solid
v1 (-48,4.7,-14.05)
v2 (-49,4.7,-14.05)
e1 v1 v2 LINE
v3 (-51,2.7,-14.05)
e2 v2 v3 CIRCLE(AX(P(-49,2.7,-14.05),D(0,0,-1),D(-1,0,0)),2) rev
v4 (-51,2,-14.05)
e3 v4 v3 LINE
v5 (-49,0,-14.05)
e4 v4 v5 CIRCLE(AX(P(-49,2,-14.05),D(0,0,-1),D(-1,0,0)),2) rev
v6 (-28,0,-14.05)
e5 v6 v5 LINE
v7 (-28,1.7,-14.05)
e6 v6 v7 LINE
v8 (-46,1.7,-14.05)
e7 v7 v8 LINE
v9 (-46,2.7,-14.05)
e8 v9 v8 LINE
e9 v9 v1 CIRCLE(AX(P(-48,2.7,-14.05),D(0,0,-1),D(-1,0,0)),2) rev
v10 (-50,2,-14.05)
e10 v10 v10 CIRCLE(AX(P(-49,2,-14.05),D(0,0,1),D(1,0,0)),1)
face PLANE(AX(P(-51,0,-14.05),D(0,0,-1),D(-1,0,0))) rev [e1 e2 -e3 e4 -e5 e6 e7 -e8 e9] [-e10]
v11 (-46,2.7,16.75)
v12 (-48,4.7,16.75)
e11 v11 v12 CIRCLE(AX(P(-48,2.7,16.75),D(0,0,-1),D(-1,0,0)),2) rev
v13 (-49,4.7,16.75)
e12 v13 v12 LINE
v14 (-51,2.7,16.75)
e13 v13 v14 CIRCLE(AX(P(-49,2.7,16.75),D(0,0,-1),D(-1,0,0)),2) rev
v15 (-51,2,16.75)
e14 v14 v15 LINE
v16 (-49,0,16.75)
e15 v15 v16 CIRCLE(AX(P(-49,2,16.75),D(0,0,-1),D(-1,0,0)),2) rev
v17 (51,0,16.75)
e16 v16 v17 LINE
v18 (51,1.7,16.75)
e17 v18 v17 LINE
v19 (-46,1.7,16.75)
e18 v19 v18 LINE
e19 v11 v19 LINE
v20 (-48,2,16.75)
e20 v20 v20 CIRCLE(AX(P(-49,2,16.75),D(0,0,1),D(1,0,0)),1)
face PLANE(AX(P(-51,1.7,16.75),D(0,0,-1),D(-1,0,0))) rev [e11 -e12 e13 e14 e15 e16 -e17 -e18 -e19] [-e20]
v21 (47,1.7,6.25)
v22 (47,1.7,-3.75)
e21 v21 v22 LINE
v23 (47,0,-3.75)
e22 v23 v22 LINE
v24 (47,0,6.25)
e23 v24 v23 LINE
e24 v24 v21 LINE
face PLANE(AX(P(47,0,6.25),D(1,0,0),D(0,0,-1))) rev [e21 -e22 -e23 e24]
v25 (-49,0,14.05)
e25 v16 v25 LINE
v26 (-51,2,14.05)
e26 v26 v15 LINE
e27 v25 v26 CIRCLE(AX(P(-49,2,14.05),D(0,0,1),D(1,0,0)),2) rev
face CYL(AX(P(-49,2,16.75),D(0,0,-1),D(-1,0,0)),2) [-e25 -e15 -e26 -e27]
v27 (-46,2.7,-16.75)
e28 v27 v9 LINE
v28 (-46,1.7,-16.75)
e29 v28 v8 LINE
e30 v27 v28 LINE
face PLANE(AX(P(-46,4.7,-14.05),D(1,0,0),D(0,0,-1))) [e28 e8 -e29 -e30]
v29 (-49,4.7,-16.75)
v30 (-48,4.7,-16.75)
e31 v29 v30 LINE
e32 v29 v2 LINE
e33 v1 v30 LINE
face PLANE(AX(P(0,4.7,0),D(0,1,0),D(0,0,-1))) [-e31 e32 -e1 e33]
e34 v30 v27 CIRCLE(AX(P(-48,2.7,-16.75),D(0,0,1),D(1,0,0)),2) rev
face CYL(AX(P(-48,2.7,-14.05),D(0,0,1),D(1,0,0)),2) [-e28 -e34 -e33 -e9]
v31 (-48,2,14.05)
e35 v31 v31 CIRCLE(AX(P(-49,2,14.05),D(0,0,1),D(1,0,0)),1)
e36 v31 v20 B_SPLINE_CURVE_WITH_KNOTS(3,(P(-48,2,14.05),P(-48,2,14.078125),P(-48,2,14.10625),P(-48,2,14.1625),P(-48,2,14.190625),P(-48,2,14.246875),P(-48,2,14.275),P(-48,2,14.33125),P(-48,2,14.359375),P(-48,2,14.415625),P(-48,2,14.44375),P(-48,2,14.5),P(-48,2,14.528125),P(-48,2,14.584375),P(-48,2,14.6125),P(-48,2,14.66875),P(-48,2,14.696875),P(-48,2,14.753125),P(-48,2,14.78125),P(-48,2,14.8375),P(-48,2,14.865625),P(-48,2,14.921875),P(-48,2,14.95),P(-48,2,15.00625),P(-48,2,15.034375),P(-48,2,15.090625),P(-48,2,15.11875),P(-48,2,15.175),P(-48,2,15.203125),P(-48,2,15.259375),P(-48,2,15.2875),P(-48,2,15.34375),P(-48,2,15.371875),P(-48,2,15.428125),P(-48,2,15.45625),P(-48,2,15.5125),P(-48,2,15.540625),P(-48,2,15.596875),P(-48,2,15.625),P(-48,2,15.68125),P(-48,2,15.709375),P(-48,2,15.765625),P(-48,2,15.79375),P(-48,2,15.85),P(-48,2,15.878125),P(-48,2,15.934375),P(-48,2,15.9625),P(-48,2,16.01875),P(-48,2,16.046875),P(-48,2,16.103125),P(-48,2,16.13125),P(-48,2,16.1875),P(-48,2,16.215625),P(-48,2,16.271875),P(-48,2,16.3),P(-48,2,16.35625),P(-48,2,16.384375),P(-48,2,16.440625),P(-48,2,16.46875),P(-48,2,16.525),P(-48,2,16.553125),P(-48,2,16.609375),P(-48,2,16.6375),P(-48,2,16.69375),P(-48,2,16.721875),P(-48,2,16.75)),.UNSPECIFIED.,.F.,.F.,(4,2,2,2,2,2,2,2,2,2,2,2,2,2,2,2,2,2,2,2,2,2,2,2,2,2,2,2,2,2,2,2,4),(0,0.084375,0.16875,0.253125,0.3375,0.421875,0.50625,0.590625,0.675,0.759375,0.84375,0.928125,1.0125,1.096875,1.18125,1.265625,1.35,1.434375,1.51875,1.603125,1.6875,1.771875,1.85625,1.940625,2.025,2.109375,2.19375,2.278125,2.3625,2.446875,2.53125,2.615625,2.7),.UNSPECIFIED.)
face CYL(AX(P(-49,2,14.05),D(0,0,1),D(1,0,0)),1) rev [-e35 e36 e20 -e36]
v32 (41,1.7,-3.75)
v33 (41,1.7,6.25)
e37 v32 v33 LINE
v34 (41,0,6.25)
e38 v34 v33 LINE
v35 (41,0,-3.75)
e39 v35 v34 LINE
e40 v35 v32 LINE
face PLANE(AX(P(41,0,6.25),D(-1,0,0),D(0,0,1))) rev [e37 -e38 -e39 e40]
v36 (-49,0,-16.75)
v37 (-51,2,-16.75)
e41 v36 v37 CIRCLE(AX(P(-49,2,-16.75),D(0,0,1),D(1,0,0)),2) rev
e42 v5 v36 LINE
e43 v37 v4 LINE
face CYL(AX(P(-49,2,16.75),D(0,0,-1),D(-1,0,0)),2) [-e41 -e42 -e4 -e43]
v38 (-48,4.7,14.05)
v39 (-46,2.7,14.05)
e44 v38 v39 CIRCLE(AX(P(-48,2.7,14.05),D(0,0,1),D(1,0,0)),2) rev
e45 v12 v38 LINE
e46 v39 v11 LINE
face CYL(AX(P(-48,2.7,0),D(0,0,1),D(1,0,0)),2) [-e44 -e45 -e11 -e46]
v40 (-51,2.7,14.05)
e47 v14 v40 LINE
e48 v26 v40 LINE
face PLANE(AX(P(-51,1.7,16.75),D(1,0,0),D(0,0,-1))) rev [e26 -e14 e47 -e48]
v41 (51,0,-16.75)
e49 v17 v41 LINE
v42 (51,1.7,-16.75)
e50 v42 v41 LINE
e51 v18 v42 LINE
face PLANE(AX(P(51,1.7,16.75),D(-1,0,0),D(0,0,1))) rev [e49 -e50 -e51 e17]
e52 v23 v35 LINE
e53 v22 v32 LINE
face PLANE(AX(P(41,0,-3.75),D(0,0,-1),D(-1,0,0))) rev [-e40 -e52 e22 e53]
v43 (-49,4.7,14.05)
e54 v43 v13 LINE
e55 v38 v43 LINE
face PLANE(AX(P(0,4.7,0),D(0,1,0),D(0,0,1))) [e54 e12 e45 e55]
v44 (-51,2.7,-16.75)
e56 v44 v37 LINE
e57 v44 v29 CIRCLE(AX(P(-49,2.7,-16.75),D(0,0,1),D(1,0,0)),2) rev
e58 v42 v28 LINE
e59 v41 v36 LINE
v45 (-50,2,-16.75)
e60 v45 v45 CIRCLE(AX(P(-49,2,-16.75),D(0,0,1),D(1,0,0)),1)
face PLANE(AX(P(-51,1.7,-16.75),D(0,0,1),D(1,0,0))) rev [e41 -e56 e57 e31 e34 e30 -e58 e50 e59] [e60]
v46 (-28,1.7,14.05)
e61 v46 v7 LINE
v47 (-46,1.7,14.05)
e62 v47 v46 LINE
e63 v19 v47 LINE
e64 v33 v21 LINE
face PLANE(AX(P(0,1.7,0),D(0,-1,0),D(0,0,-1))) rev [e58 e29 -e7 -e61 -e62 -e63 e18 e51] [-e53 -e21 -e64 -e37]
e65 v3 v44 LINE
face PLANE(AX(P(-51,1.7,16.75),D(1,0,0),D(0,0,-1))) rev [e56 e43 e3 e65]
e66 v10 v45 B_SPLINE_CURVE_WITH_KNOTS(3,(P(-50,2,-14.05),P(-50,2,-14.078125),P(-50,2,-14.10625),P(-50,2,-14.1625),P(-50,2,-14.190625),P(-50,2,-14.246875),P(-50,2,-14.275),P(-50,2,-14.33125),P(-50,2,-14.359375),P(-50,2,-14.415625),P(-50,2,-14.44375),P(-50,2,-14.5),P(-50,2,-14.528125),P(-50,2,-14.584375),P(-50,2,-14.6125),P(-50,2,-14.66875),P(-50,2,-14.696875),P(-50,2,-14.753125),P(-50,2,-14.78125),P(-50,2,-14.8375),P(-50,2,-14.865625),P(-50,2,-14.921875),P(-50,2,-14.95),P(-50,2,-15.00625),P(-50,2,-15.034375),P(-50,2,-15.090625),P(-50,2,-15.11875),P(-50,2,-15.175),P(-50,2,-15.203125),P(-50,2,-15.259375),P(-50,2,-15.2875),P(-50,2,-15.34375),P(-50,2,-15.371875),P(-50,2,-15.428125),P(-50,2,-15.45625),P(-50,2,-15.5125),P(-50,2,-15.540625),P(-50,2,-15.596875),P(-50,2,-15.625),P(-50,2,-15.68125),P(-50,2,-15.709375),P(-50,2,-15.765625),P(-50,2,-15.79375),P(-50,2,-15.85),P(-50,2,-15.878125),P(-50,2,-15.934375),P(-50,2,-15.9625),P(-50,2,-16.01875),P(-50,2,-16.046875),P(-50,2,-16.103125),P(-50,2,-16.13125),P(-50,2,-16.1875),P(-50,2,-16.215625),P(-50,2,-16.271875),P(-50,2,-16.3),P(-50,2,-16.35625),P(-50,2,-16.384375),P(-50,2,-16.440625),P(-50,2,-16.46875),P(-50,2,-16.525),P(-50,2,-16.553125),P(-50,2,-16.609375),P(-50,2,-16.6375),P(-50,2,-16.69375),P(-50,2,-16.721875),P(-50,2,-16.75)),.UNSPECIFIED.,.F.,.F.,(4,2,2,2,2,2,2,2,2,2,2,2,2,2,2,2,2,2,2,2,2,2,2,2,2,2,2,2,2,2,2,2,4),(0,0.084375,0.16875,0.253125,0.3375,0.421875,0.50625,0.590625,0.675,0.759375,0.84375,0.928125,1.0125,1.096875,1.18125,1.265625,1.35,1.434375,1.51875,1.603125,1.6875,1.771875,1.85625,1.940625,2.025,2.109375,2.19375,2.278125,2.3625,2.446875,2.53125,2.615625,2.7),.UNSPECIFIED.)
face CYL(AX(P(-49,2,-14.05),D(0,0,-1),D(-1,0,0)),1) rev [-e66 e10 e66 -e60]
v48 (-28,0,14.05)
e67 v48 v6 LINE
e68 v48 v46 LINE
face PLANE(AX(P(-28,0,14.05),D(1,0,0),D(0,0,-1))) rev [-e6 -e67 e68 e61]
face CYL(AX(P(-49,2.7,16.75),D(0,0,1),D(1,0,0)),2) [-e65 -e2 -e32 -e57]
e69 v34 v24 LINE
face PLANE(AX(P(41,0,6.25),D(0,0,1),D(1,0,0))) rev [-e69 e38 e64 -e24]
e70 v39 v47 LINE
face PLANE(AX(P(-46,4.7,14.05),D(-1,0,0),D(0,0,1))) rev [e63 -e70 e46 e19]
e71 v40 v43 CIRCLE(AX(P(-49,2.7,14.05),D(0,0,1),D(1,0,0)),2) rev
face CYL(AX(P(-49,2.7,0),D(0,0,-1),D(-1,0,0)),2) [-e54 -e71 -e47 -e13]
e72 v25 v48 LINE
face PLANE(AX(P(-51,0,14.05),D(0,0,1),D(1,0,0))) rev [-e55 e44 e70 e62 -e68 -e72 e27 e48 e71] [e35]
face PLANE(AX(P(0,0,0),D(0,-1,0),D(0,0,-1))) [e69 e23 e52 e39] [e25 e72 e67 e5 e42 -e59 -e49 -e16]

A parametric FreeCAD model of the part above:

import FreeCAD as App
import Part
import Sketcher
from FreeCAD import Vector


def edges_at(feature, points):
    """Names of the edges that pass closest to the given points."""
    edges = feature.Shape.Edges
    near = lambda p: min(range(len(edges)), key=lambda i: edges[i].distToShape(Part.Vertex(*p))[0])
    return sorted({f"Edge{near(p) + 1}" for p in points})

doc = App.newDocument("Part")
body = doc.addObject("PartDesign::Body", "Body")

# Sketch on XZ plane
sketch1 = body.newObject("Sketcher::SketchObject", "Sketch")
sketch1.AttachmentSupport = (doc.getObject("XZ_Plane"), [""])
sketch1.MapMode = "FlatFace"
sketch1.addGeometry(Part.LineSegment(Vector(-51, -16.75, 0), Vector(-51, 16.75, 0)), False)
sketch1.addGeometry(Part.LineSegment(Vector(-51, 16.75, 0), Vector(51, 16.75, 0)), False)
sketch1.addGeometry(Part.LineSegment(Vector(51, 16.75, 0), Vector(51, -16.75, 0)), False)
sketch1.addGeometry(Part.LineSegment(Vector(51, -16.75, 0), Vector(-51, -16.75, 0)), False)
sketch1.addConstraint(Sketcher.Constraint("Coincident", 0, 2, 1, 1))
sketch1.addConstraint(Sketcher.Constraint("Coincident", 1, 2, 2, 1))
sketch1.addConstraint(Sketcher.Constraint("Coincident", 2, 2, 3, 1))
sketch1.addConstraint(Sketcher.Constraint("Coincident", 3, 2, 0, 1))
sketch1.addConstraint(Sketcher.Constraint("Vertical", 0))
sketch1.addConstraint(Sketcher.Constraint("Horizontal", 1))
sketch1.addConstraint(Sketcher.Constraint("Vertical", 2))
sketch1.addConstraint(Sketcher.Constraint("Horizontal", 3))
sketch1.addConstraint(Sketcher.Constraint("Symmetric", 0, 2, 2, 2, -1, 1))
sketch1.addConstraint(Sketcher.Constraint("DistanceX", 1, 1, 1, 2, 102.0))
sketch1.addConstraint(Sketcher.Constraint("DistanceY", 0, 1, 0, 2, 33.5))
pad1 = body.newObject("PartDesign::Pad", "Pad")
pad1.Profile = sketch1
pad1.Length = 1.7
pad1.Reversed = True

# Sketch on XZ plane
sketch2 = body.newObject("Sketcher::SketchObject", "Sketch001")
sketch2.AttachmentSupport = (doc.getObject("XZ_Plane"), [""])
sketch2.MapMode = "FlatFace"
sketch2.AttachmentOffset = App.Placement(Vector(0, 0, -1.7), App.Rotation())
sketch2.addGeometry(Part.LineSegment(Vector(-51, -14.05, 0), Vector(-51, 14.05, 0)), False)
sketch2.addGeometry(Part.LineSegment(Vector(-51, 14.05, 0), Vector(-28, 14.05, 0)), False)
sketch2.addGeometry(Part.LineSegment(Vector(-28, 14.05, 0), Vector(-28, -14.05, 0)), False)
sketch2.addGeometry(Part.LineSegment(Vector(-28, -14.05, 0), Vector(-51, -14.05, 0)), False)
sketch2.addConstraint(Sketcher.Constraint("Coincident", 0, 2, 1, 1))
sketch2.addConstraint(Sketcher.Constraint("Coincident", 1, 2, 2, 1))
sketch2.addConstraint(Sketcher.Constraint("Coincident", 2, 2, 3, 1))
sketch2.addConstraint(Sketcher.Constraint("Coincident", 3, 2, 0, 1))
sketch2.addConstraint(Sketcher.Constraint("Vertical", 0))
sketch2.addConstraint(Sketcher.Constraint("Horizontal", 1))
sketch2.addConstraint(Sketcher.Constraint("Vertical", 2))
sketch2.addConstraint(Sketcher.Constraint("Horizontal", 3))
sketch2.addConstraint(Sketcher.Constraint("DistanceX", 1, 1, 1, 2, 23.0))
sketch2.addConstraint(Sketcher.Constraint("DistanceY", 0, 1, 0, 2, 28.1))
sketch2.addConstraint(Sketcher.Constraint("DistanceX", 0, 2, -1, 1, 51.0))
sketch2.addConstraint(Sketcher.Constraint("DistanceY", -1, 1, 0, 2, 14.05))
pocket1 = body.newObject("PartDesign::Pocket", "Pocket")
pocket1.Profile = sketch2
pocket1.Length = 1.7
pocket1.Reversed = True

# Sketch on XZ plane
sketch3 = body.newObject("Sketcher::SketchObject", "Sketch002")
sketch3.AttachmentSupport = (doc.getObject("XZ_Plane"), [""])
sketch3.MapMode = "FlatFace"
sketch3.AttachmentOffset = App.Placement(Vector(0, 0, -1.7), App.Rotation())
sketch3.addGeometry(Part.LineSegment(Vector(-51, 14.05, 0), Vector(-51, 16.75, 0)), False)
sketch3.addGeometry(Part.LineSegment(Vector(-51, 16.75, 0), Vector(-46, 16.75, 0)), False)
sketch3.addGeometry(Part.LineSegment(Vector(-46, 16.75, 0), Vector(-46, 14.05, 0)), False)
sketch3.addGeometry(Part.LineSegment(Vector(-46, 14.05, 0), Vector(-51, 14.05, 0)), False)
sketch3.addConstraint(Sketcher.Constraint("Coincident", 0, 2, 1, 1))
sketch3.addConstraint(Sketcher.Constraint("Coincident", 1, 2, 2, 1))
sketch3.addConstraint(Sketcher.Constraint("Coincident", 2, 2, 3, 1))
sketch3.addConstraint(Sketcher.Constraint("Coincident", 3, 2, 0, 1))
sketch3.addConstraint(Sketcher.Constraint("Vertical", 0))
sketch3.addConstraint(Sketcher.Constraint("Horizontal", 1))
sketch3.addConstraint(Sketcher.Constraint("Vertical", 2))
sketch3.addConstraint(Sketcher.Constraint("Horizontal", 3))
sketch3.addConstraint(Sketcher.Constraint("DistanceX", 1, 1, 1, 2, 5.0))
sketch3.addConstraint(Sketcher.Constraint("DistanceY", 0, 1, 0, 2, 2.7))
sketch3.addConstraint(Sketcher.Constraint("DistanceX", 0, 2, -1, 1, 51.0))
sketch3.addConstraint(Sketcher.Constraint("DistanceY", -1, 1, 0, 2, 16.75))
pad2 = body.newObject("PartDesign::Pad", "Pad001")
pad2.Profile = sketch3
pad2.Length = 3
pad2.Reversed = True

# Sketch on XY plane
sketch4 = body.newObject("Sketcher::SketchObject", "Sketch003")
sketch4.AttachmentSupport = (doc.getObject("XY_Plane"), [""])
sketch4.MapMode = "FlatFace"
sketch4.AttachmentOffset = App.Placement(Vector(0, 0, 16.75), App.Rotation())
sketch4.addGeometry(Part.Circle(Vector(-49, 2, 0), Vector(0, 0, 1), 1), False)
sketch4.addConstraint(Sketcher.Constraint("Diameter", 0, 2.0))
sketch4.addConstraint(Sketcher.Constraint("DistanceX", 0, 3, -1, 1, 49.0))
sketch4.addConstraint(Sketcher.Constraint("DistanceY", -1, 1, 0, 3, 2.0))
pocket2 = body.newObject("PartDesign::Pocket", "Pocket001")
pocket2.Profile = sketch4
pocket2.Length = 2.7
doc.recompute()

fillet = body.newObject("PartDesign::Fillet", "Fillet")
fillet.Base = (pocket2, edges_at(pocket2, [(-51, 0, 15.4), (-51, 4.7, 15.4), (-46, 4.7, 15.4)]))
fillet.Radius = 2
doc.recompute()

mirrored = body.newObject("PartDesign::Mirrored", "Mirrored")
mirrored.Originals = [pad2, pocket2]
mirrored.MirrorPlane = (doc.getObject("XY_Plane"), [""])
body.Tip = mirrored
doc.recompute()

fillet2 = body.newObject("PartDesign::Fillet", "Fillet001")
fillet2.Base = (mirrored, edges_at(mirrored, [(-51, 0, -15.4), (-51, 4.7, -15.4), (-46, 4.7, -15.4)]))
fillet2.Radius = 2

# Sketch on XZ plane
sketch5 = body.newObject("Sketcher::SketchObject", "Sketch004")
sketch5.AttachmentSupport = (doc.getObject("XZ_Plane"), [""])
sketch5.MapMode = "FlatFace"
sketch5.AttachmentOffset = App.Placement(Vector(0, 0, -1.7), App.Rotation())
sketch5.addGeometry(Part.LineSegment(Vector(41, -3.75, 0), Vector(41, 6.25, 0)), False)
sketch5.addGeometry(Part.LineSegment(Vector(41, 6.25, 0), Vector(47, 6.25, 0)), False)
sketch5.addGeometry(Part.LineSegment(Vector(47, 6.25, 0), Vector(47, -3.75, 0)), False)
sketch5.addGeometry(Part.LineSegment(Vector(47, -3.75, 0), Vector(41, -3.75, 0)), False)
sketch5.addConstraint(Sketcher.Constraint("Coincident", 0, 2, 1, 1))
sketch5.addConstraint(Sketcher.Constraint("Coincident", 1, 2, 2, 1))
sketch5.addConstraint(Sketcher.Constraint("Coincident", 2, 2, 3, 1))
sketch5.addConstraint(Sketcher.Constraint("Coincident", 3, 2, 0, 1))
sketch5.addConstraint(Sketcher.Constraint("Vertical", 0))
sketch5.addConstraint(Sketcher.Constraint("Horizontal", 1))
sketch5.addConstraint(Sketcher.Constraint("Vertical", 2))
sketch5.addConstraint(Sketcher.Constraint("Horizontal", 3))
sketch5.addConstraint(Sketcher.Constraint("DistanceX", 1, 1, 1, 2, 6.0))
sketch5.addConstraint(Sketcher.Constraint("DistanceY", 0, 1, 0, 2, 10.0))
sketch5.addConstraint(Sketcher.Constraint("DistanceX", -1, 1, 0, 2, 41.0))
sketch5.addConstraint(Sketcher.Constraint("DistanceY", -1, 1, 0, 2, 6.25))
pocket3 = body.newObject("PartDesign::Pocket", "Pocket002")
pocket3.Profile = sketch5
pocket3.Length = 1.7
pocket3.Reversed = True

doc.recompute()
